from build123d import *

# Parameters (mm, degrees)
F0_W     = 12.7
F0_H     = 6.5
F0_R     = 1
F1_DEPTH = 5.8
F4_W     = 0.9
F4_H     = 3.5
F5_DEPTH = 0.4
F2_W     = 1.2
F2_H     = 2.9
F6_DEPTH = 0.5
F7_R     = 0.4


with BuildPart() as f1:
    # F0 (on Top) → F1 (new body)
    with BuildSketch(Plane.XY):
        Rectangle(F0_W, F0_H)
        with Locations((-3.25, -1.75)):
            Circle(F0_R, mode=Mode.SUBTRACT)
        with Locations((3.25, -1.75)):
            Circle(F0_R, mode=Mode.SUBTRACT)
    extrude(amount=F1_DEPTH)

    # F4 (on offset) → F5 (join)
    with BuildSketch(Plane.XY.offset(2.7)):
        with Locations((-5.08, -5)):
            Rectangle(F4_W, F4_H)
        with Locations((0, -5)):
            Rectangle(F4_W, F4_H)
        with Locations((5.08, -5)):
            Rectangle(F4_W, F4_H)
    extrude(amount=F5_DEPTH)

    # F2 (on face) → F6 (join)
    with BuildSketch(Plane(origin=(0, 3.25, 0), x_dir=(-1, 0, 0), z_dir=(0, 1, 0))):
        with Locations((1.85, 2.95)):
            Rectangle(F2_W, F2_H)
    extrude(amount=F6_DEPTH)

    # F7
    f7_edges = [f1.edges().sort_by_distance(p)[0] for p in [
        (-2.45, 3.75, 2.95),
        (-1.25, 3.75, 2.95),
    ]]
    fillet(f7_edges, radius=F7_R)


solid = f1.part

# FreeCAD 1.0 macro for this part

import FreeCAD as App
import Part
import Sketcher

V = App.Vector
Q = App.Units.Quantity


def edges_at(feature, points):
    """Names of the edges that pass closest to the given points."""
    edges = feature.Shape.Edges
    near = lambda p: min(range(len(edges)), key=lambda i: edges[i].distToShape(Part.Vertex(*p))[0])
    return sorted({f"Edge{near(p) + 1}" for p in points})


def add_polygon(sketch, points):
    """Adds a closed chain of lines whose ends are joined by coincident constraints."""
    first, n = sketch.GeometryCount, len(points)
    for a, b in zip(points, points[1:] + points[:1]):
        sketch.addGeometry(Part.LineSegment(App.Vector(*a, 0), App.Vector(*b, 0)), False)
    for i in range(n):
        sketch.addConstraint(Sketcher.Constraint("Coincident", first + i, 2, first + (i + 1) % n, 1))

doc = App.newDocument("Part")
body = doc.addObject("PartDesign::Body", "Body")

# Sketch on XY plane
sketch1 = body.newObject("Sketcher::SketchObject", "Sketch")
sketch1.AttachmentSupport = (doc.getObject("XY_Plane"), [""])
sketch1.MapMode = "FlatFace"
add_polygon(sketch1, [(-6.35, 3.25), (-6.35, -3.25), (6.35, -3.25), (6.35, 3.25)])  # lines 0-3
sketch1.addGeometry(Part.Circle(V(-3.25, -1.75, 0), V(0, 0, 1), 1), False)  # 4
sketch1.addGeometry(Part.Circle(V(3.25, -1.75, 0), V(0, 0, 1), 1), False)  # 5
sketch1.addConstraint(Sketcher.Constraint("Vertical", 0))
sketch1.addConstraint(Sketcher.Constraint("Horizontal", 1))
sketch1.addConstraint(Sketcher.Constraint("Vertical", 2))
sketch1.addConstraint(Sketcher.Constraint("Horizontal", 3))
sketch1.addConstraint(Sketcher.Constraint("Equal", 4, 5))
sketch1.addConstraint(Sketcher.Constraint("Symmetric", 0, 2, 2, 2, -1, 1))
sketch1.addConstraint(Sketcher.Constraint("Symmetric", 4, 3, 5, 3, -2))
sketch1.addConstraint(Sketcher.Constraint("Diameter", 4, Q("2 mm")))
sketch1.addConstraint(Sketcher.Constraint("DistanceX", 1, 1, 1, 2, Q("12.7 mm")))
sketch1.addConstraint(Sketcher.Constraint("DistanceY", 0, 2, 0, 1, Q("6.5 mm")))
sketch1.addConstraint(Sketcher.Constraint("DistanceY", 5, 3, 2, 2, Q("5 mm")))
sketch1.addConstraint(Sketcher.Constraint("DistanceX", 4, 3, 5, 3, Q("6.5 mm")))
pad1 = body.newObject("PartDesign::Pad", "Pad")
pad1.Profile = sketch1
pad1.Length = 5.8

# Sketch on XY plane
sketch2 = body.newObject("Sketcher::SketchObject", "Sketch001")
sketch2.AttachmentSupport = (doc.getObject("XY_Plane"), [""])
sketch2.MapMode = "FlatFace"
sketch2.AttachmentOffset = App.Placement(V(0, 0, 2.7), App.Rotation())
add_polygon(sketch2, [(-5.53, -3.25), (-5.53, -6.75), (-4.63, -6.75), (-4.63, -3.25)])  # lines 0-3
add_polygon(sketch2, [(-0.45, -3.25), (-0.45, -6.75), (0.45, -6.75), (0.45, -3.25)])  # lines 4-7
add_polygon(sketch2, [(4.63, -3.25), (4.63, -6.75), (5.53, -6.75), (5.53, -3.25)])  # lines 8-11
sketch2.addConstraint(Sketcher.Constraint("Vertical", 0))
sketch2.addConstraint(Sketcher.Constraint("Horizontal", 1))
sketch2.addConstraint(Sketcher.Constraint("Vertical", 2))
sketch2.addConstraint(Sketcher.Constraint("Horizontal", 3))
sketch2.addConstraint(Sketcher.Constraint("Vertical", 4))
sketch2.addConstraint(Sketcher.Constraint("Horizontal", 5))
sketch2.addConstraint(Sketcher.Constraint("Vertical", 6))
sketch2.addConstraint(Sketcher.Constraint("Horizontal", 7))
sketch2.addConstraint(Sketcher.Constraint("Vertical", 8))
sketch2.addConstraint(Sketcher.Constraint("Horizontal", 9))
sketch2.addConstraint(Sketcher.Constraint("Vertical", 10))
sketch2.addConstraint(Sketcher.Constraint("Horizontal", 11))
sketch2.addConstraint(Sketcher.Constraint("Symmetric", 1, 2, 8, 2, -2))
sketch2.addConstraint(Sketcher.Constraint("Symmetric", 3, 2, 10, 2, -2))
sketch2.addConstraint(Sketcher.Constraint("Horizontal", 1, 2, 4, 2))
sketch2.addConstraint(Sketcher.Constraint("Horizontal", 3, 2, 6, 2))
sketch2.addConstraint(Sketcher.Constraint("Equal", 3, 5))
sketch2.addConstraint(Sketcher.Constraint("DistanceX", 1, 1, 1, 2, Q("0.9 mm")))
sketch2.addConstraint(Sketcher.Constraint("DistanceY", 0, 2, 0, 1, Q("3.5 mm")))
sketch2.addConstraint(Sketcher.Constraint("DistanceX", 0, 2, -1, 1, Q("5.53 mm")))
sketch2.addConstraint(Sketcher.Constraint("DistanceY", 0, 2, -1, 1, Q("6.75 mm")))
sketch2.addConstraint(Sketcher.Constraint("DistanceX", 4, 2, -1, 1, Q("0.45 mm")))
pad2 = body.newObject("PartDesign::Pad", "Pad001")
pad2.Profile = sketch2
pad2.Length = 0.4

# Sketch on XZ plane
sketch3 = body.newObject("Sketcher::SketchObject", "Sketch002")
sketch3.AttachmentSupport = (doc.getObject("XZ_Plane"), [""])
sketch3.MapMode = "FlatFace"
sketch3.AttachmentOffset = App.Placement(V(0, 0, -3.25), App.Rotation())
add_polygon(sketch3, [(-1.25, 4.4), (-1.25, 1.5), (-2.45, 1.5), (-2.45, 4.4)])  # lines 0-3
sketch3.addConstraint(Sketcher.Constraint("Vertical", 0))
sketch3.addConstraint(Sketcher.Constraint("Horizontal", 1))
sketch3.addConstraint(Sketcher.Constraint("Vertical", 2))
sketch3.addConstraint(Sketcher.Constraint("Horizontal", 3))
sketch3.addConstraint(Sketcher.Constraint("DistanceX", 1, 2, 1, 1, Q("1.2 mm")))
sketch3.addConstraint(Sketcher.Constraint("DistanceY", 0, 2, 0, 1, Q("2.9 mm")))
sketch3.addConstraint(Sketcher.Constraint("DistanceY", -1, 1, 0, 2, Q("1.5 mm")))
sketch3.addConstraint(Sketcher.Constraint("DistanceX", 0, 2, -1, 1, Q("1.25 mm")))
pad3 = body.newObject("PartDesign::Pad", "Pad002")
pad3.Profile = sketch3
pad3.Length = 0.5
pad3.Reversed = True
doc.recompute()

fillet = body.newObject("PartDesign::Fillet", "Fillet")
fillet.Base = (pad3, edges_at(pad3, [(-2.45, 3.75, 2.95), (-1.25, 3.75, 2.95)]))
fillet.Radius = 0.4

doc.recompute()
